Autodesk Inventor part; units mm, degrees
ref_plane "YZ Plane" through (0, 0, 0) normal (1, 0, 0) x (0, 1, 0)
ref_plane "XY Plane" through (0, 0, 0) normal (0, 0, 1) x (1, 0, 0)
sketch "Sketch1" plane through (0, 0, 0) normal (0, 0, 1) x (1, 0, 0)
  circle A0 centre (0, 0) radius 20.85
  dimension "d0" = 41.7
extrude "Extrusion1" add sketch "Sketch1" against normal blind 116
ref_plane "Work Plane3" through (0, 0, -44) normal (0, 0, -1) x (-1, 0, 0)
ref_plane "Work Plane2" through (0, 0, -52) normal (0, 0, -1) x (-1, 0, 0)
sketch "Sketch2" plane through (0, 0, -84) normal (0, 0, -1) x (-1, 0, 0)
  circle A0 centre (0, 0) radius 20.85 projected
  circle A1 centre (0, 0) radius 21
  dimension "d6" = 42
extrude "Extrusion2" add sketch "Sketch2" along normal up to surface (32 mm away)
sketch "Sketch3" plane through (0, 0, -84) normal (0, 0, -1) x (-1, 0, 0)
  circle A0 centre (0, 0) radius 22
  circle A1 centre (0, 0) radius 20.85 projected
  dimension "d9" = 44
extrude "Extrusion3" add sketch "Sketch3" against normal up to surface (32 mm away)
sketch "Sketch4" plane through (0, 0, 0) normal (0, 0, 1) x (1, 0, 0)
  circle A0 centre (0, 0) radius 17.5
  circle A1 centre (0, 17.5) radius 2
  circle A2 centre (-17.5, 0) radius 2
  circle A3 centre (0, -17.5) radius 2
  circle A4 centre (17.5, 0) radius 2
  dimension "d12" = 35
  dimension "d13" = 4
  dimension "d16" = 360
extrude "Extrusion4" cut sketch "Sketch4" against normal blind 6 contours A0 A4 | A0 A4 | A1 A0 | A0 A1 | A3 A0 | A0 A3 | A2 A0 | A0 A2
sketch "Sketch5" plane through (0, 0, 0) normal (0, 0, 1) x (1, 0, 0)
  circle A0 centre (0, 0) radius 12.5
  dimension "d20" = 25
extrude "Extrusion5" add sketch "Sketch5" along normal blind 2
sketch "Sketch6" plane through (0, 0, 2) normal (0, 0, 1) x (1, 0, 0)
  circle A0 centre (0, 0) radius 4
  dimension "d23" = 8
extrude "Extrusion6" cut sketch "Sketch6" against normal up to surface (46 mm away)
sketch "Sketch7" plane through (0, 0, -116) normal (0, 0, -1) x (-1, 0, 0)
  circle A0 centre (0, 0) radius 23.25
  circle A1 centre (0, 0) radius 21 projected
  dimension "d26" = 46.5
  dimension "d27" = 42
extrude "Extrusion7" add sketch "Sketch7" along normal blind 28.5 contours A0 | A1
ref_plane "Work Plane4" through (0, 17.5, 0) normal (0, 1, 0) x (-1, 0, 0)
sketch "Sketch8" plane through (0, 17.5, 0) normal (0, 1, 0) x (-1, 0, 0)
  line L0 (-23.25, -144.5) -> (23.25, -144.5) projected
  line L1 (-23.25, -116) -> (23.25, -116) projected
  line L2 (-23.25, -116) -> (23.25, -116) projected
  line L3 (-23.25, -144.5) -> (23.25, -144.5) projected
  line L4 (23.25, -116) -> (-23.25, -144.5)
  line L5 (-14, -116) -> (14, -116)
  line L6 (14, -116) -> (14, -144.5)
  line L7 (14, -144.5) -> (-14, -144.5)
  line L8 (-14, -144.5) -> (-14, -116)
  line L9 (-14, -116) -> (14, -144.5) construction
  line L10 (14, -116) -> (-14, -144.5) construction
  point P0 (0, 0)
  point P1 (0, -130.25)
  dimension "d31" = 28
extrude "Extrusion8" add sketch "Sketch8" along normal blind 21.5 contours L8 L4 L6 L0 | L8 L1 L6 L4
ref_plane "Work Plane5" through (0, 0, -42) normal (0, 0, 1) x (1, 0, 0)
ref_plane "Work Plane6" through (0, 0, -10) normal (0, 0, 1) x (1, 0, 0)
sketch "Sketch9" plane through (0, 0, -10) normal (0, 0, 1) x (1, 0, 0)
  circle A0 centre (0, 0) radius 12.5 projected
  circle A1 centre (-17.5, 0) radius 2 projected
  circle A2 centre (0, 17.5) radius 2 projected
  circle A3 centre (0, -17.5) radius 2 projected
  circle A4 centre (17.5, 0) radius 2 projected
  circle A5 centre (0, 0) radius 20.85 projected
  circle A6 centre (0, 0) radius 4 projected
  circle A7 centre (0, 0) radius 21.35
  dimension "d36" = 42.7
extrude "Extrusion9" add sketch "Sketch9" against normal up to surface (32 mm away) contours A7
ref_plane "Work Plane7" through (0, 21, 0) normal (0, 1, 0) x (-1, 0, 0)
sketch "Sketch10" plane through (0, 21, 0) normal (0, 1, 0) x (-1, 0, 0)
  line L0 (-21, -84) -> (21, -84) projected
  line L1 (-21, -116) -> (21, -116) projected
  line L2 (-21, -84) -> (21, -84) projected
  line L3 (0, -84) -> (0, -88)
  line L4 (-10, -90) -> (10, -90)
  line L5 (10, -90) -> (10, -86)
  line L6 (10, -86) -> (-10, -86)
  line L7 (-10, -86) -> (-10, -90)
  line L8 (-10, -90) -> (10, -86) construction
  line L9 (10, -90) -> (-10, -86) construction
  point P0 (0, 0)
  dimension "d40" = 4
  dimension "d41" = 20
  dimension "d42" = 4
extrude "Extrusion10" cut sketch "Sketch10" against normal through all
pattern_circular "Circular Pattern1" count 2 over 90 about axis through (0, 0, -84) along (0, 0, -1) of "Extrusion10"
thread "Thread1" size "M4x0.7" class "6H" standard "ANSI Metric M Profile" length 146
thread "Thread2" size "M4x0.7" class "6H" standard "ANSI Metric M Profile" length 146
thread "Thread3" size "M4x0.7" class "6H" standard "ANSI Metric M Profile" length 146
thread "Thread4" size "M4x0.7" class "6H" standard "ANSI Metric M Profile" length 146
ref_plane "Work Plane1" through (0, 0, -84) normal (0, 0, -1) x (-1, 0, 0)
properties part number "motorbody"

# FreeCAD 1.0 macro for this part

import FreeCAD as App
import Part
import Sketcher

V = App.Vector


def add_polygon(sketch, points):
    """Adds a closed chain of lines whose ends are joined by coincident constraints."""
    first, n = sketch.GeometryCount, len(points)
    for a, b in zip(points, points[1:] + points[:1]):
        sketch.addGeometry(Part.LineSegment(App.Vector(*a, 0), App.Vector(*b, 0)), False)
    for i in range(n):
        sketch.addConstraint(Sketcher.Constraint("Coincident", first + i, 2, first + (i + 1) % n, 1))

doc = App.newDocument("Part")
body = doc.addObject("PartDesign::Body", "Body")

# Sketch on XY plane
sketch1 = body.newObject("Sketcher::SketchObject", "Sketch")
sketch1.AttachmentSupport = (doc.getObject("XY_Plane"), [""])
sketch1.MapMode = "FlatFace"
sketch1.addGeometry(Part.Circle(V(0, 0, 0), V(0, 0, 1), 21), False)
sketch1.addConstraint(Sketcher.Constraint("Coincident", 0, 3, -1, 1))
sketch1.addConstraint(Sketcher.Constraint("Diameter", 0, 41.7))
pad1 = body.newObject("PartDesign::Pad", "Pad")
pad1.Profile = sketch1
pad1.Length = 116
pad1.Reversed = True

# Sketch on XY plane
sketch2 = body.newObject("Sketcher::SketchObject", "Sketch001")
sketch2.AttachmentSupport = (doc.getObject("XY_Plane"), [""])
sketch2.MapMode = "FlatFace"
sketch2.AttachmentOffset = App.Placement(V(0, 0, -84), App.Rotation())
sketch2.addGeometry(Part.Circle(V(0, 0, 0), V(0, 0, 1), 21), False)
sketch2.addGeometry(Part.Circle(V(0, 0, 0), V(0, 0, 1), 21), False)
sketch2.addConstraint(Sketcher.Constraint("Coincident", 0, 3, -1, 1))
sketch2.addConstraint(Sketcher.Constraint("Coincident", 1, 3, -1, 1))
sketch2.addConstraint(Sketcher.Constraint("Diameter", 0, 42.0))
sketch2.addConstraint(Sketcher.Constraint("Diameter", 1, 41.7))
pad2 = body.newObject("PartDesign::Pad", "Pad001")
pad2.Profile = sketch2
pad2.Length = 32
pad2.Reversed = True

# Sketch on XY plane
sketch3 = body.newObject("Sketcher::SketchObject", "Sketch002")
sketch3.AttachmentSupport = (doc.getObject("XY_Plane"), [""])
sketch3.MapMode = "FlatFace"
sketch3.AttachmentOffset = App.Placement(V(0, 0, -84), App.Rotation())
sketch3.addGeometry(Part.Circle(V(0, 0, 0), V(0, 0, 1), 22), False)
sketch3.addGeometry(Part.Circle(V(0, 0, 0), V(0, 0, 1), 21), False)
sketch3.addConstraint(Sketcher.Constraint("Coincident", 0, 3, -1, 1))
sketch3.addConstraint(Sketcher.Constraint("Coincident", 1, 3, -1, 1))
sketch3.addConstraint(Sketcher.Constraint("Diameter", 0, 44.0))
sketch3.addConstraint(Sketcher.Constraint("Diameter", 1, 41.7))
pad3 = body.newObject("PartDesign::Pad", "Pad002")
pad3.Profile = sketch3
pad3.Length = 32

# Sketch on XY plane
sketch4 = body.newObject("Sketcher::SketchObject", "Sketch003")
sketch4.AttachmentSupport = (doc.getObject("XY_Plane"), [""])
sketch4.MapMode = "FlatFace"
sketch4.addGeometry(Part.Circle(V(17.5, 0, 0), V(0, 0, 1), 2), False)
sketch4.addGeometry(Part.Circle(V(0, 17.5, 0), V(0, 0, 1), 2), False)
sketch4.addGeometry(Part.Circle(V(0, -17.5, 0), V(0, 0, 1), 2), False)
sketch4.addGeometry(Part.Circle(V(-17.5, 0, 0), V(0, 0, 1), 2), False)
sketch4.addConstraint(Sketcher.Constraint("Equal", 0, 1))
sketch4.addConstraint(Sketcher.Constraint("Equal", 1, 2))
sketch4.addConstraint(Sketcher.Constraint("Equal", 2, 3))
sketch4.addConstraint(Sketcher.Constraint("Symmetric", 1, 3, 2, 3, -1, 1))
sketch4.addConstraint(Sketcher.Constraint("Symmetric", 0, 3, 3, 3, -1, 1))
sketch4.addConstraint(Sketcher.Constraint("PointOnObject", 0, 3, -1))
sketch4.addConstraint(Sketcher.Constraint("PointOnObject", 1, 3, -2))
sketch4.addConstraint(Sketcher.Constraint("Diameter", 0, 4.0))
sketch4.addConstraint(Sketcher.Constraint("DistanceY", 2, 3, 1, 3, 35.0))
sketch4.addConstraint(Sketcher.Constraint("DistanceX", 3, 3, 0, 3, 35.0))
pocket1 = body.newObject("PartDesign::Pocket", "Pocket")
pocket1.Profile = sketch4
pocket1.Length = 6

# Sketch on XY plane
sketch5 = body.newObject("Sketcher::SketchObject", "Sketch004")
sketch5.AttachmentSupport = (doc.getObject("XY_Plane"), [""])
sketch5.MapMode = "FlatFace"
sketch5.addGeometry(Part.Circle(V(0, 0, 0), V(0, 0, 1), 12), False)
sketch5.addConstraint(Sketcher.Constraint("Coincident", 0, 3, -1, 1))
sketch5.addConstraint(Sketcher.Constraint("Diameter", 0, 25.0))
pad4 = body.newObject("PartDesign::Pad", "Pad003")
pad4.Profile = sketch5
pad4.Length = 2

# Sketch on XY plane
sketch6 = body.newObject("Sketcher::SketchObject", "Sketch005")
sketch6.AttachmentSupport = (doc.getObject("XY_Plane"), [""])
sketch6.MapMode = "FlatFace"
sketch6.AttachmentOffset = App.Placement(V(0, 0, 2), App.Rotation())
sketch6.addGeometry(Part.Circle(V(0, 0, 0), V(0, 0, 1), 4), False)
sketch6.addConstraint(Sketcher.Constraint("Coincident", 0, 3, -1, 1))
sketch6.addConstraint(Sketcher.Constraint("Diameter", 0, 8.0))
pocket2 = body.newObject("PartDesign::Pocket", "Pocket001")
pocket2.Profile = sketch6
pocket2.Length = 46

# Sketch on XY plane
sketch7 = body.newObject("Sketcher::SketchObject", "Sketch006")
sketch7.AttachmentSupport = (doc.getObject("XY_Plane"), [""])
sketch7.MapMode = "FlatFace"
sketch7.AttachmentOffset = App.Placement(V(0, 0, -116), App.Rotation())
sketch7.addGeometry(Part.Circle(V(0, 0, 0), V(0, 0, 1), 23), False)
sketch7.addConstraint(Sketcher.Constraint("Coincident", 0, 3, -1, 1))
sketch7.addConstraint(Sketcher.Constraint("Diameter", 0, 46.5))
pad5 = body.newObject("PartDesign::Pad", "Pad004")
pad5.Profile = sketch7
pad5.Length = 28.5
pad5.Reversed = True

# Sketch on XZ plane
sketch8 = body.newObject("Sketcher::SketchObject", "Sketch007")
sketch8.AttachmentSupport = (doc.getObject("XZ_Plane"), [""])
sketch8.MapMode = "FlatFace"
sketch8.AttachmentOffset = App.Placement(V(0, 0, -17.5), App.Rotation())
add_polygon(sketch8, [(14, -144), (-14, -144), (-14, -116), (14, -116)])  # lines 0-3
sketch8.addConstraint(Sketcher.Constraint("Horizontal", 0))
sketch8.addConstraint(Sketcher.Constraint("Vertical", 1))
sketch8.addConstraint(Sketcher.Constraint("Horizontal", 2))
sketch8.addConstraint(Sketcher.Constraint("Vertical", 3))
sketch8.addConstraint(Sketcher.Constraint("DistanceX", 0, 2, 0, 1, 28.0))
sketch8.addConstraint(Sketcher.Constraint("DistanceY", 1, 1, 1, 2, 28.5))
sketch8.addConstraint(Sketcher.Constraint("DistanceX", 0, 2, -1, 1, 14.0))
sketch8.addConstraint(Sketcher.Constraint("DistanceY", 1, 2, -1, 1, 116.0))
pad6 = body.newObject("PartDesign::Pad", "Pad005")
pad6.Profile = sketch8
pad6.Length = 21.5
pad6.Reversed = True

# Sketch on XY plane
sketch9 = body.newObject("Sketcher::SketchObject", "Sketch008")
sketch9.AttachmentSupport = (doc.getObject("XY_Plane"), [""])
sketch9.MapMode = "FlatFace"
sketch9.AttachmentOffset = App.Placement(V(0, 0, -10), App.Rotation())
sketch9.addGeometry(Part.Circle(V(0, 0, 0), V(0, 0, 1), 21), False)
sketch9.addGeometry(Part.Circle(V(0, 0, 0), V(0, 0, 1), 21), False)
sketch9.addConstraint(Sketcher.Constraint("Coincident", 0, 3, -1, 1))
sketch9.addConstraint(Sketcher.Constraint("Coincident", 1, 3, -1, 1))
sketch9.addConstraint(Sketcher.Constraint("Diameter", 0, 42.7))
sketch9.addConstraint(Sketcher.Constraint("Diameter", 1, 41.7))
pad7 = body.newObject("PartDesign::Pad", "Pad006")
pad7.Profile = sketch9
pad7.Length = 32
pad7.Reversed = True

# Sketch on XZ plane
sketch10 = body.newObject("Sketcher::SketchObject", "Sketch009")
sketch10.AttachmentSupport = (doc.getObject("XZ_Plane"), [""])
sketch10.MapMode = "FlatFace"
sketch10.AttachmentOffset = App.Placement(V(0, 0, -21), App.Rotation())
add_polygon(sketch10, [(10, -86), (10, -90), (-10, -90), (-10, -86)])  # lines 0-3
sketch10.addConstraint(Sketcher.Constraint("Vertical", 0))
sketch10.addConstraint(Sketcher.Constraint("Horizontal", 1))
sketch10.addConstraint(Sketcher.Constraint("Vertical", 2))
sketch10.addConstraint(Sketcher.Constraint("Horizontal", 3))
sketch10.addConstraint(Sketcher.Constraint("DistanceX", 1, 2, 1, 1, 20.0))
sketch10.addConstraint(Sketcher.Constraint("DistanceY", 0, 2, 0, 1, 4.0))
sketch10.addConstraint(Sketcher.Constraint("DistanceX", -1, 1, 0, 2, 10.0))
sketch10.addConstraint(Sketcher.Constraint("DistanceY", 0, 2, -1, 1, 90.0))
pocket3 = body.newObject("PartDesign::Pocket", "Pocket002")
pocket3.Profile = sketch10
pocket3.Type = "ThroughAll"
pocket3.Reversed = True
doc.recompute()

polarpattern = body.newObject("PartDesign::PolarPattern", "PolarPattern")
polarpattern.Originals = [pocket3]
polarpattern.Axis = (doc.getObject("Z_Axis"), [""])
polarpattern.Angle = 90
polarpattern.Occurrences = 2
polarpattern.Reversed = True
body.Tip = polarpattern

doc.recompute()
